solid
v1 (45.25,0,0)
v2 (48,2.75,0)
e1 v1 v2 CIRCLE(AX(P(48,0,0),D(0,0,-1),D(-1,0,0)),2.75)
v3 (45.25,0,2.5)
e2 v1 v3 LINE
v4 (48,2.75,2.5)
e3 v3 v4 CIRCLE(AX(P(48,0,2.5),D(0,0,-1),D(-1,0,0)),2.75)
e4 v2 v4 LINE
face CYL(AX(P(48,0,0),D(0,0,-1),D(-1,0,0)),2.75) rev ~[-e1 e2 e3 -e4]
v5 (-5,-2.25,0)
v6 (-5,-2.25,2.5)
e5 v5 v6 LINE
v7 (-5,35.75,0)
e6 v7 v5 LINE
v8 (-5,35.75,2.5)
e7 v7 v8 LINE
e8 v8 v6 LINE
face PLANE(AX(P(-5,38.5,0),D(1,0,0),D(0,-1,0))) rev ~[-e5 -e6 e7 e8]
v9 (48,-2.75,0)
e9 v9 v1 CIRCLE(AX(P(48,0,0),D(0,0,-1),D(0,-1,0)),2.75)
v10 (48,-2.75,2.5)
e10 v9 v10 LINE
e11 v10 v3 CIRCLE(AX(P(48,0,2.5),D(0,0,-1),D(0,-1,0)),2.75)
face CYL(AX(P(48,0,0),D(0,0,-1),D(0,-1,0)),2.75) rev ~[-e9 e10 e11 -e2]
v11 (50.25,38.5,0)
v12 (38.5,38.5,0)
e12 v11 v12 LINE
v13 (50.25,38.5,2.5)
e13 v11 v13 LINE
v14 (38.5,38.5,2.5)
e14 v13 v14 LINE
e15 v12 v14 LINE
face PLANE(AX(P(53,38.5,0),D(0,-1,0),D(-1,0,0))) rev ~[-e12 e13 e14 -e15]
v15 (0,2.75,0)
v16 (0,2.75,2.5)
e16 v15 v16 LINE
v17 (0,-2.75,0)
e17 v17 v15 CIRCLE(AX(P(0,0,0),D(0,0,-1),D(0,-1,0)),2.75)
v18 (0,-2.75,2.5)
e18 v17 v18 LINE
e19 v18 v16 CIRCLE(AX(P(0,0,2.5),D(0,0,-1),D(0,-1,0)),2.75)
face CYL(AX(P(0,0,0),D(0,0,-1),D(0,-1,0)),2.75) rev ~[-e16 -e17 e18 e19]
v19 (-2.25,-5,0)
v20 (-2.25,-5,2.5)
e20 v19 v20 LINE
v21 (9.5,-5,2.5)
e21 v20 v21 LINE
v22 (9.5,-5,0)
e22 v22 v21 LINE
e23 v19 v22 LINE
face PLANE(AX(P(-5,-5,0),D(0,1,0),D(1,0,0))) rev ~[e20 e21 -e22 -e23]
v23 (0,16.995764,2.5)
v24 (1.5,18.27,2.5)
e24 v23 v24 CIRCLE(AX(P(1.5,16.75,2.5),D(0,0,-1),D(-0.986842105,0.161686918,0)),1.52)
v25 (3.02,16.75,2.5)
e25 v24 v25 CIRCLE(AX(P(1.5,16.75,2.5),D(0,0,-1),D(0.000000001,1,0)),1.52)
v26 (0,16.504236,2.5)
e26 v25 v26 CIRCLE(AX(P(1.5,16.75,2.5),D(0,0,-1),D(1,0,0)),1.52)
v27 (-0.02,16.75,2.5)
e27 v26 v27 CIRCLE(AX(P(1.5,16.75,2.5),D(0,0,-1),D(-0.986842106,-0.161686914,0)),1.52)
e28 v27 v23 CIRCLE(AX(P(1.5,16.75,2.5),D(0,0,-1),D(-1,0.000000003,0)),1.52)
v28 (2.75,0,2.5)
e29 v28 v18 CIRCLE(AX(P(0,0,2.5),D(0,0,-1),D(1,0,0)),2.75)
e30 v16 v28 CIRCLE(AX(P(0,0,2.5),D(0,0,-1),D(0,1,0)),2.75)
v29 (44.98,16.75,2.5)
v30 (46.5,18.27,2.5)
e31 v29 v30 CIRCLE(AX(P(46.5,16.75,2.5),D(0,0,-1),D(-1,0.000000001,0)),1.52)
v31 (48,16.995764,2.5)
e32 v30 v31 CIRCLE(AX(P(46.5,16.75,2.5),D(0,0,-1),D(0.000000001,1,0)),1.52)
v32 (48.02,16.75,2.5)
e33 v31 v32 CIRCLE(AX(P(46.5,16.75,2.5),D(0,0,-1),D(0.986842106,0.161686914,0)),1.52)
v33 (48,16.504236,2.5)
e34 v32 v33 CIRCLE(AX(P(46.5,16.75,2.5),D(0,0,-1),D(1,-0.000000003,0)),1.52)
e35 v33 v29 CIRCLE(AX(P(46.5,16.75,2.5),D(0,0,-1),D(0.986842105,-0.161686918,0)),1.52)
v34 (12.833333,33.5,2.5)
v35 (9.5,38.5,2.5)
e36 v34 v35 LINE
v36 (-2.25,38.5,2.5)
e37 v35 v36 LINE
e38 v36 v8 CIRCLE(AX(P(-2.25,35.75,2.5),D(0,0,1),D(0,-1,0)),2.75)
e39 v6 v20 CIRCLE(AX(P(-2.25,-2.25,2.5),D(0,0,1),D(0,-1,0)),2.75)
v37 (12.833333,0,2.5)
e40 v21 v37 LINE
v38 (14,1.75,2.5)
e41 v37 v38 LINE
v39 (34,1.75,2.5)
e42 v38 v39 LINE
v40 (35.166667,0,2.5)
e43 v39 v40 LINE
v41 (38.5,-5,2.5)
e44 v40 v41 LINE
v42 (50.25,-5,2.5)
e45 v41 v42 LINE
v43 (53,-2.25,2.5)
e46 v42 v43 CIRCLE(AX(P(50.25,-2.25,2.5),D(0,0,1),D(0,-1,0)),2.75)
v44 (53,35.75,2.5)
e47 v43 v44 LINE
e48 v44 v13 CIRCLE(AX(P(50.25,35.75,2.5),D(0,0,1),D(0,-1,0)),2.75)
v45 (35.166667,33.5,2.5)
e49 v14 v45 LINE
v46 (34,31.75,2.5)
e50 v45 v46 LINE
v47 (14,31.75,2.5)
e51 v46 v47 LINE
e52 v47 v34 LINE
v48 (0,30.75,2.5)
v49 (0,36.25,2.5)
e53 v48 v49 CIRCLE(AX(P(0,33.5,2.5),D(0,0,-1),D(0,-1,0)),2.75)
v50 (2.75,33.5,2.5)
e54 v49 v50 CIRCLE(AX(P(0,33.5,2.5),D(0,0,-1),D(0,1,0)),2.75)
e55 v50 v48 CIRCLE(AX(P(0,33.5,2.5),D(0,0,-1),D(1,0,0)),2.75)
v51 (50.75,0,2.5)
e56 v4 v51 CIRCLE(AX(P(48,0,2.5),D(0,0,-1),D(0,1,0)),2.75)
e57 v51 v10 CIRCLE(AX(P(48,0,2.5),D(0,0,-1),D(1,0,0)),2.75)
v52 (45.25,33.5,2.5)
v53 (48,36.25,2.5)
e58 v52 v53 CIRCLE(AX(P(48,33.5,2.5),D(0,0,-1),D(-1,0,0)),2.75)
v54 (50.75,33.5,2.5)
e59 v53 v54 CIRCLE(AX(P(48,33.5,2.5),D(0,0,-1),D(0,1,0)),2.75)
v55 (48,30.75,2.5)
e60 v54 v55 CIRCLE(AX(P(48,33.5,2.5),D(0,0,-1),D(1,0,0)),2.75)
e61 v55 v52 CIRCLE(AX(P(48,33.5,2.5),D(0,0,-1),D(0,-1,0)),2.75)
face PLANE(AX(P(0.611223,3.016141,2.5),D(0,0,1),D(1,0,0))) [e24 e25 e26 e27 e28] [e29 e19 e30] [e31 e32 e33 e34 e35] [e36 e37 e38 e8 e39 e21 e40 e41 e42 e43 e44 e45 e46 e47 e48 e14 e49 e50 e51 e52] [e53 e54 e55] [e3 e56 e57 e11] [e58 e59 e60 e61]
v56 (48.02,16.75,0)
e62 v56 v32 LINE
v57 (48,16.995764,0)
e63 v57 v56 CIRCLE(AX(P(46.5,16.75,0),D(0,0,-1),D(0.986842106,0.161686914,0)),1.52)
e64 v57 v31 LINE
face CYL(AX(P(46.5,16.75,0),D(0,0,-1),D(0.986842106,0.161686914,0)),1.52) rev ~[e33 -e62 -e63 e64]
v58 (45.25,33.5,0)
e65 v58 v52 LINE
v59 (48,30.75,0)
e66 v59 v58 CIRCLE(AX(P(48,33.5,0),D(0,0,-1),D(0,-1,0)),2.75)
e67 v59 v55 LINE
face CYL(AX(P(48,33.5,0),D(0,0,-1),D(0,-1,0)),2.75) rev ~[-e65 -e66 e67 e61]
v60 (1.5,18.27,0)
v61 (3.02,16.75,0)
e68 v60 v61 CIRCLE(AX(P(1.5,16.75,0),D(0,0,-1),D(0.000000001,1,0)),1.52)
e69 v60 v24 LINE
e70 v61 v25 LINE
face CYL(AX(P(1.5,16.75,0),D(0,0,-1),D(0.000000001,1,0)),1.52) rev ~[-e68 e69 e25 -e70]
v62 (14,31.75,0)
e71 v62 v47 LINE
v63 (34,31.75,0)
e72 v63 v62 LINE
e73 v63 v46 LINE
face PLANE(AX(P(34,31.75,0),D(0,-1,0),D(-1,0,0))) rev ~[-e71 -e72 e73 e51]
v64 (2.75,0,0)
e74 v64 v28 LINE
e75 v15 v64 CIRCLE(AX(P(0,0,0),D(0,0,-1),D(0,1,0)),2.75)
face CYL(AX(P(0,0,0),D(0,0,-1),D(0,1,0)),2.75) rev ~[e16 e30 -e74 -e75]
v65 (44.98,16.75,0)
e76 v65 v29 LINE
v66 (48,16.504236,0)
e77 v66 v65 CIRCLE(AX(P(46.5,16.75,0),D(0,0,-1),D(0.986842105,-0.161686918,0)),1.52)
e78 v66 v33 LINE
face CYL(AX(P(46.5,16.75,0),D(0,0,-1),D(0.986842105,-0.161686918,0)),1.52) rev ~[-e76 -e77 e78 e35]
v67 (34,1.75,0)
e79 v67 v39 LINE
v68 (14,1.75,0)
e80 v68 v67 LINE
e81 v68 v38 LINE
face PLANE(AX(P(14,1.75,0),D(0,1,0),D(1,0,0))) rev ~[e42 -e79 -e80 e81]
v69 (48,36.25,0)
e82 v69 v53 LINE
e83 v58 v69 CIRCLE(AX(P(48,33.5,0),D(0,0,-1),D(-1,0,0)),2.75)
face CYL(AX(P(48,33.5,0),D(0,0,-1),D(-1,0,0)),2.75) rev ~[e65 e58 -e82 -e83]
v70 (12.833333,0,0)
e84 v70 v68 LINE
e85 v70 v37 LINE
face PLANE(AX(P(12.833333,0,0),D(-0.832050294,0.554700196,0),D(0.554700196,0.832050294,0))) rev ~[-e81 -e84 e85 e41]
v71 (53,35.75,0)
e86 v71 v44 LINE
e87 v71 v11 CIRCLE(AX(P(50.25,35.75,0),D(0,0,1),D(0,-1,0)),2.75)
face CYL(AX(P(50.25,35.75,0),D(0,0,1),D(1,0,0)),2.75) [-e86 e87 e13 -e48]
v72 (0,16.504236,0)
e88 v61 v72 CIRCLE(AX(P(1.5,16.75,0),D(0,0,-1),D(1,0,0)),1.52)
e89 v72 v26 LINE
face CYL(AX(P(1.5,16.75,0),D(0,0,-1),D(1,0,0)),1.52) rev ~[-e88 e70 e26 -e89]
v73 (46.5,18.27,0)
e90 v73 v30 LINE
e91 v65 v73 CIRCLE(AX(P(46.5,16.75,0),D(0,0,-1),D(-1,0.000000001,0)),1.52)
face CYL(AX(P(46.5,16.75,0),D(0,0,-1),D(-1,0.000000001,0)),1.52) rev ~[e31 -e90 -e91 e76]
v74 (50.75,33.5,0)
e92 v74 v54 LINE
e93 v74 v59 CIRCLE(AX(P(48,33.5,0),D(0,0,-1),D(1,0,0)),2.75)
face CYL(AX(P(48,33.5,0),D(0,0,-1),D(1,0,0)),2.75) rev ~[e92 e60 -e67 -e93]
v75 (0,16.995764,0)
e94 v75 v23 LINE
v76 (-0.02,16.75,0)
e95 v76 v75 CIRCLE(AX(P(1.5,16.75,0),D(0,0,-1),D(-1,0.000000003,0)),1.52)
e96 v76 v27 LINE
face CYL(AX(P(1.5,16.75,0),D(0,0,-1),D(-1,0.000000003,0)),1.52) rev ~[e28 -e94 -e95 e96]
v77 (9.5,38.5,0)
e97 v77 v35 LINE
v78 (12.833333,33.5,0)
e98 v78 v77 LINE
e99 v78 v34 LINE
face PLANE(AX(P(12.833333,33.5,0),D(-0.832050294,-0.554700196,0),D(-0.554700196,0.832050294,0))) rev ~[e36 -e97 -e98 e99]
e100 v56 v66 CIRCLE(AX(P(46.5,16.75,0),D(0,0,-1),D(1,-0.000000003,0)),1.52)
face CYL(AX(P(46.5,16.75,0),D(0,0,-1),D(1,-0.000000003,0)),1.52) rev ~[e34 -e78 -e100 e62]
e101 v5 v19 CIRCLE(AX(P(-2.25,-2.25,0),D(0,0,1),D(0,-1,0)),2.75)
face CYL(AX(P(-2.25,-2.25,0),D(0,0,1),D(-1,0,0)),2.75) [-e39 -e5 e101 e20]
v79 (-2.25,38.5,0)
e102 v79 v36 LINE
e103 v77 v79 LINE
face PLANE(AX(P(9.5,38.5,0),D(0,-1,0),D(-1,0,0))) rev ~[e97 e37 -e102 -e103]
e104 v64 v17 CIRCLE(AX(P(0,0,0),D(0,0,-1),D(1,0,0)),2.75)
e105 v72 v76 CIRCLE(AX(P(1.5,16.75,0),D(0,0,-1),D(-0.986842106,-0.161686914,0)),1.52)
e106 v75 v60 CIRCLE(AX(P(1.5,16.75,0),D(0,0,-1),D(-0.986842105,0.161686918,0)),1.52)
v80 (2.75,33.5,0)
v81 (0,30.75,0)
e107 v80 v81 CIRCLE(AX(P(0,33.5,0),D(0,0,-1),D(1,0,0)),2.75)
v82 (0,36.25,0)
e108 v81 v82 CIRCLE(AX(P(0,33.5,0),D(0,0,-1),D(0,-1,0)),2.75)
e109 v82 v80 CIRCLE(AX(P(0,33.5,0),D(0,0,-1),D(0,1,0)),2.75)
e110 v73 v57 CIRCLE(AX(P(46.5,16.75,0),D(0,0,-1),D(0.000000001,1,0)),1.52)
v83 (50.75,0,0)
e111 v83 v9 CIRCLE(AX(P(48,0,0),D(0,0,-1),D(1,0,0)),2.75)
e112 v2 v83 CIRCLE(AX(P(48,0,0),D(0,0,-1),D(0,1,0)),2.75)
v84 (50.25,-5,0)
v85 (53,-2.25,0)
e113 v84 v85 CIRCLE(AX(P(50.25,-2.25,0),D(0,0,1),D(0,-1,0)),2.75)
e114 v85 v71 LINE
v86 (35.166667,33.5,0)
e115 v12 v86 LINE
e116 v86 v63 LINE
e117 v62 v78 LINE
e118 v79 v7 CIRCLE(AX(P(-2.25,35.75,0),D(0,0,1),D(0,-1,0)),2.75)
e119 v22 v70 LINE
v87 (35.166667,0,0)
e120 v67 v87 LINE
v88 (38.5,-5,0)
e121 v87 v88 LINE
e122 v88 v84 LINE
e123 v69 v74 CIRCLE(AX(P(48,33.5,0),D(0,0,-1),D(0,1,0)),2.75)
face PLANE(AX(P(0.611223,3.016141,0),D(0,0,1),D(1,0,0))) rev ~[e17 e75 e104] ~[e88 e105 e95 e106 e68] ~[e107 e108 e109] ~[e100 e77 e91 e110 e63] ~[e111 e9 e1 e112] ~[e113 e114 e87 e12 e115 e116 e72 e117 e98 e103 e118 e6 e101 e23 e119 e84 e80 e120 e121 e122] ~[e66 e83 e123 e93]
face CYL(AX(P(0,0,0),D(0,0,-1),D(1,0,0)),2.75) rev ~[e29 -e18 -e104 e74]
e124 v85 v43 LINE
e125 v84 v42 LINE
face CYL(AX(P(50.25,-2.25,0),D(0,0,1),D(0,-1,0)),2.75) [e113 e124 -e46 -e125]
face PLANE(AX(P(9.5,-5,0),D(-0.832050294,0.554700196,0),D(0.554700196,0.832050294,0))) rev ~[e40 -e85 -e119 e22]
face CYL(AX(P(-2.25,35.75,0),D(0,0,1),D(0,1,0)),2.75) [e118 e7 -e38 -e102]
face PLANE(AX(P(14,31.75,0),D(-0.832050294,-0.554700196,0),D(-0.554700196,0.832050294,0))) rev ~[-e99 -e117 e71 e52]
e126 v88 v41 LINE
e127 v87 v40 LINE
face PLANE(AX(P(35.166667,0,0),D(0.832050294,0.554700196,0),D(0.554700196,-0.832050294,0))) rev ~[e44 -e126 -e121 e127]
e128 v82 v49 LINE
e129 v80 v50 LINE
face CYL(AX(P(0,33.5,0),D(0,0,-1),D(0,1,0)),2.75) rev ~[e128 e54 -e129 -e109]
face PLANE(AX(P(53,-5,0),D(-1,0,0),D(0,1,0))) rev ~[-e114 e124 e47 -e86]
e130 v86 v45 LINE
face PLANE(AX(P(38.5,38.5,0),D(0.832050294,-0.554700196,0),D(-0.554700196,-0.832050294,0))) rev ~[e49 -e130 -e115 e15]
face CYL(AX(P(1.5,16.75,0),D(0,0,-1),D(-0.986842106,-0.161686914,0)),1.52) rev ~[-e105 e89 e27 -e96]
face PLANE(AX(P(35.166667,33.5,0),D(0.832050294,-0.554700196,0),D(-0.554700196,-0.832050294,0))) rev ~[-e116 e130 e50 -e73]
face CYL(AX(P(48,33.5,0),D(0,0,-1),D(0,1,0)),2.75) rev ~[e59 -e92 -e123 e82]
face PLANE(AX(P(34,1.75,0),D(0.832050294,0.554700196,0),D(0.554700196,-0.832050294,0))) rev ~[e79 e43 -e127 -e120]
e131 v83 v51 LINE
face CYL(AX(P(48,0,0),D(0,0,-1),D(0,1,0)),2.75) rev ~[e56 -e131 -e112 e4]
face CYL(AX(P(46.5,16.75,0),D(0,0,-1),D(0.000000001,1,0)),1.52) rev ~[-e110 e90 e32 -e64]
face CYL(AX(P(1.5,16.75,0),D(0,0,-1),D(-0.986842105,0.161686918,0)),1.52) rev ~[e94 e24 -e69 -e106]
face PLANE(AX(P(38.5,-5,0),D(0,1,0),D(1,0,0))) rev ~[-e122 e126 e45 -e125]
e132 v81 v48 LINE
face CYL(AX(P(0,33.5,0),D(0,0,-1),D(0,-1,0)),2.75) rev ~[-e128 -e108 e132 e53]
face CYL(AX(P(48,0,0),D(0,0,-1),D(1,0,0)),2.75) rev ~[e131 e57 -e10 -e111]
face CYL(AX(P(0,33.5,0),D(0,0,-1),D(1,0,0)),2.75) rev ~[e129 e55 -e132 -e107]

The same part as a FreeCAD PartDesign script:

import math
import FreeCAD as App
import Part
import Sketcher

V = App.Vector


def edges_at(feature, points):
    """Names of the edges that pass closest to the given points."""
    edges = feature.Shape.Edges
    near = lambda p: min(range(len(edges)), key=lambda i: edges[i].distToShape(Part.Vertex(*p))[0])
    return sorted({f"Edge{near(p) + 1}" for p in points})


def add_polygon(sketch, points):
    """Adds a closed chain of lines whose ends are joined by coincident constraints."""
    first, n = sketch.GeometryCount, len(points)
    for a, b in zip(points, points[1:] + points[:1]):
        sketch.addGeometry(Part.LineSegment(App.Vector(*a, 0), App.Vector(*b, 0)), False)
    for i in range(n):
        sketch.addConstraint(Sketcher.Constraint("Coincident", first + i, 2, first + (i + 1) % n, 1))

doc = App.newDocument("Part")
body = doc.addObject("PartDesign::Body", "Body")

# Sketch on XY plane
sketch1 = body.newObject("Sketcher::SketchObject", "Sketch")
sketch1.AttachmentSupport = (doc.getObject("XY_Plane"), [""])
sketch1.MapMode = "FlatFace"
add_polygon(sketch1, [(34, 1.75), (35.17, 0), (38.5, -5), (53, -5), (53, 38.5), (38.5, 38.5), (35.17, 33.5), (34, 31.75), (14, 31.75), (12.83, 33.5), (9.5, 38.5), (-5, 38.5), (-5, -5), (9.5, -5), (12.83, 0), (14, 1.75)])  # lines 0-15
sketch1.addGeometry(Part.ArcOfCircle(Part.Circle(V(1.5, 16.75, 0), V(0, 0, 1), 1.52), math.radians(-180), math.radians(-170.7)), False)  # 16
sketch1.addGeometry(Part.ArcOfCircle(Part.Circle(V(1.5, 16.75, 0), V(0, 0, 1), 1.52), math.radians(170.7), math.radians(180)), False)  # 17
sketch1.addGeometry(Part.ArcOfCircle(Part.Circle(V(1.5, 16.75, 0), V(0, 0, 1), 1.52), math.radians(90), math.radians(171)), False)  # 18
sketch1.addGeometry(Part.ArcOfCircle(Part.Circle(V(1.5, 16.75, 0), V(0, 0, 1), 1.52), math.radians(0), math.radians(90)), False)  # 19
sketch1.addGeometry(Part.ArcOfCircle(Part.Circle(V(1.5, 16.75, 0), V(0, 0, 1), 1.52), math.radians(-171), math.radians(0)), False)  # 20
sketch1.addGeometry(Part.ArcOfCircle(Part.Circle(V(0, 0, 0), V(0, 0, 1), 2.75), math.radians(-90), math.radians(0)), False)  # 21
sketch1.addGeometry(Part.ArcOfCircle(Part.Circle(V(0, 0, 0), V(0, 0, 1), 2.75), math.radians(90), math.radians(270)), False)  # 22
sketch1.addGeometry(Part.ArcOfCircle(Part.Circle(V(0, 0, 0), V(0, 0, 1), 2.75), math.radians(0), math.radians(90)), False)  # 23
sketch1.addGeometry(Part.ArcOfCircle(Part.Circle(V(46.5, 16.75, 0), V(0, 0, 1), 1.52), math.radians(90), math.radians(180)), False)  # 24
sketch1.addGeometry(Part.ArcOfCircle(Part.Circle(V(46.5, 16.75, 0), V(0, 0, 1), 1.52), math.radians(9), math.radians(90)), False)  # 25
sketch1.addGeometry(Part.ArcOfCircle(Part.Circle(V(46.5, 16.75, 0), V(0, 0, 1), 1.52), math.radians(0), math.radians(9.3)), False)  # 26
sketch1.addGeometry(Part.ArcOfCircle(Part.Circle(V(46.5, 16.75, 0), V(0, 0, 1), 1.52), math.radians(-9.3), math.radians(0)), False)  # 27
sketch1.addGeometry(Part.ArcOfCircle(Part.Circle(V(46.5, 16.75, 0), V(0, 0, 1), 1.52), math.radians(180), math.radians(351)), False)  # 28
sketch1.addGeometry(Part.ArcOfCircle(Part.Circle(V(48, 0, 0), V(0, 0, 1), 2.75), math.radians(0), math.radians(90)), False)  # 29
sketch1.addGeometry(Part.ArcOfCircle(Part.Circle(V(48, 0, 0), V(0, 0, 1), 2.75), math.radians(-90), math.radians(0)), False)  # 30
sketch1.addGeometry(Part.ArcOfCircle(Part.Circle(V(48, 0, 0), V(0, 0, 1), 2.75), math.radians(-180), math.radians(-90)), False)  # 31
sketch1.addGeometry(Part.ArcOfCircle(Part.Circle(V(48, 0, 0), V(0, 0, 1), 2.75), math.radians(90), math.radians(180)), False)  # 32
sketch1.addGeometry(Part.ArcOfCircle(Part.Circle(V(48, 33.5, 0), V(0, 0, 1), 2.75), math.radians(-180), math.radians(-90)), False)  # 33
sketch1.addGeometry(Part.ArcOfCircle(Part.Circle(V(48, 33.5, 0), V(0, 0, 1), 2.75), math.radians(90), math.radians(180)), False)  # 34
sketch1.addGeometry(Part.ArcOfCircle(Part.Circle(V(48, 33.5, 0), V(0, 0, 1), 2.75), math.radians(0), math.radians(90)), False)  # 35
sketch1.addGeometry(Part.ArcOfCircle(Part.Circle(V(48, 33.5, 0), V(0, 0, 1), 2.75), math.radians(-90), math.radians(0)), False)  # 36
sketch1.addGeometry(Part.ArcOfCircle(Part.Circle(V(0, 33.5, 0), V(0, 0, 1), 2.75), math.radians(90), math.radians(270)), False)  # 37
sketch1.addGeometry(Part.ArcOfCircle(Part.Circle(V(0, 33.5, 0), V(0, 0, 1), 2.75), math.radians(0), math.radians(90)), False)  # 38
sketch1.addGeometry(Part.ArcOfCircle(Part.Circle(V(0, 33.5, 0), V(0, 0, 1), 2.75), math.radians(-90), math.radians(0)), False)  # 39
sketch1.addConstraint([
    Sketcher.Constraint("Tangent", 16, 1, 17, 2),
    Sketcher.Constraint("Tangent", 17, 1, 18, 2),
    Sketcher.Constraint("Tangent", 18, 1, 19, 2),
    Sketcher.Constraint("Tangent", 19, 1, 20, 2),
    Sketcher.Constraint("Tangent", 20, 1, 16, 2),
    Sketcher.Constraint("Tangent", 21, 1, 22, 2),
    Sketcher.Constraint("Tangent", 22, 1, 23, 2),
    Sketcher.Constraint("Tangent", 23, 1, 21, 2),
    Sketcher.Constraint("Tangent", 24, 1, 25, 2),
    Sketcher.Constraint("Tangent", 25, 1, 26, 2),
    Sketcher.Constraint("Tangent", 26, 1, 27, 2),
    Sketcher.Constraint("Tangent", 27, 1, 28, 2),
    Sketcher.Constraint("Tangent", 28, 1, 24, 2),
    Sketcher.Constraint("Tangent", 29, 1, 30, 2),
    Sketcher.Constraint("Tangent", 30, 1, 31, 2),
    Sketcher.Constraint("Tangent", 31, 1, 32, 2),
    Sketcher.Constraint("Tangent", 32, 1, 29, 2),
    Sketcher.Constraint("Tangent", 33, 1, 34, 2),
    Sketcher.Constraint("Tangent", 34, 1, 35, 2),
    Sketcher.Constraint("Tangent", 35, 1, 36, 2),
    Sketcher.Constraint("Tangent", 36, 1, 33, 2),
    Sketcher.Constraint("Tangent", 37, 1, 38, 2),
    Sketcher.Constraint("Tangent", 38, 1, 39, 2),
    Sketcher.Constraint("Tangent", 39, 1, 37, 2),
    Sketcher.Constraint("Horizontal", 2),
    Sketcher.Constraint("Vertical", 3),
    Sketcher.Constraint("Horizontal", 4),
    Sketcher.Constraint("Horizontal", 7),
    Sketcher.Constraint("Horizontal", 10),
    Sketcher.Constraint("Vertical", 11),
    Sketcher.Constraint("Horizontal", 12),
    Sketcher.Constraint("Horizontal", 15),
    Sketcher.Constraint("Coincident", 21, 3, -1, 1),
    Sketcher.Constraint("Coincident", 18, 3, 16, 3),
    Sketcher.Constraint("Coincident", 26, 3, 24, 3),
    Sketcher.Constraint("Equal", 20, 24),
    Sketcher.Constraint("Equal", 23, 29),
    Sketcher.Constraint("Equal", 29, 30),
    Sketcher.Constraint("Equal", 32, 33),
    Sketcher.Constraint("Equal", 33, 34),
    Sketcher.Constraint("Equal", 36, 37),
    Sketcher.Constraint("Symmetric", 30, 1, 32, 1, -1),
    Sketcher.Constraint("PointOnObject", 37, 3, -2),
    Sketcher.Constraint("PointOnObject", 0, 2, -1),
    Sketcher.Constraint("PointOnObject", 13, 2, -1),
    Sketcher.Constraint("PointOnObject", 17, 1, -2),
    Sketcher.Constraint("PointOnObject", 20, 1, -2),
    Sketcher.Constraint("PointOnObject", 21, 1, -2),
    Sketcher.Constraint("PointOnObject", 22, 1, -2),
    Sketcher.Constraint("PointOnObject", 23, 1, -1),
    Sketcher.Constraint("PointOnObject", 29, 1, -1),
    Sketcher.Constraint("PointOnObject", 31, 1, -1),
    Sketcher.Constraint("PointOnObject", 37, 1, -2),
    Sketcher.Constraint("PointOnObject", 39, 1, -2),
    Sketcher.Constraint("Parallel", 0, 1),
    Sketcher.Constraint("Parallel", 5, 6),
    Sketcher.Constraint("Parallel", 1, 8),
    Sketcher.Constraint("Parallel", 8, 9),
    Sketcher.Constraint("Parallel", 6, 13),
    Sketcher.Constraint("Parallel", 13, 14),
    Sketcher.Constraint("Horizontal", 20, 3, 24, 3),
    Sketcher.Constraint("Horizontal", 36, 3, 37, 3),
    Sketcher.Constraint("Horizontal", 39, 3, 5, 2),
    Sketcher.Constraint("Horizontal", 5, 2, 8, 2),
    Sketcher.Constraint("Horizontal", 4, 2, 9, 2),
    Sketcher.Constraint("Horizontal", 2, 2, 11, 2),
    Sketcher.Constraint("Horizontal", 28, 3, 16, 1),
    Sketcher.Constraint("Horizontal", 16, 1, 19, 1),
    Sketcher.Constraint("Horizontal", 17, 1, 25, 1),
    Sketcher.Constraint("Horizontal", 19, 1, 26, 1),
    Sketcher.Constraint("Horizontal", 20, 1, 27, 1),
    Sketcher.Constraint("Horizontal", 26, 1, 28, 1),
    Sketcher.Constraint("Horizontal", 8, 2, 33, 1),
    Sketcher.Constraint("Horizontal", 33, 1, 35, 1),
    Sketcher.Constraint("Horizontal", 35, 1, 38, 1),
    Sketcher.Constraint("Vertical", 32, 3, 33, 3),
    Sketcher.Constraint("Vertical", 1, 2, 4, 2),
    Sketcher.Constraint("Vertical", 0, 2, 5, 2),
    Sketcher.Constraint("Vertical", 9, 2, 12, 2),
    Sketcher.Constraint("Vertical", 8, 2, 13, 2),
    Sketcher.Constraint("Vertical", 7, 2, 14, 2),
    Sketcher.Constraint("Vertical", 20, 3, 18, 1),
    Sketcher.Constraint("Vertical", 28, 3, 24, 1),
    Sketcher.Constraint("Vertical", 36, 3, 25, 1),
    Sketcher.Constraint("Vertical", 27, 1, 30, 1),
    Sketcher.Constraint("Vertical", 32, 1, 34, 1),
    Sketcher.Constraint("Vertical", 34, 1, 36, 1),
    Sketcher.Constraint("Equal", 4, 10),
    Sketcher.Constraint("DistanceX", 7, 2, 7, 1, 20.0),
    Sketcher.Constraint("Radius", 16, 1.52),
    Sketcher.Constraint("Radius", 21, 2.75),
    Sketcher.Constraint("DistanceX", 2, 1, 2, 2, 14.5),
    Sketcher.Constraint("DistanceY", 3, 1, 3, 2, 43.5),
    Sketcher.Constraint("DistanceX", -1, 1, 29, 3, 48.0),
    Sketcher.Constraint("DistanceY", 1, 2, -1, 1, 5.0),
    Sketcher.Constraint("DistanceX", -1, 1, 2, 2, 53.0),
    Sketcher.Constraint("DistanceX", -1, 1, 6, 2, 34.0),
    Sketcher.Constraint("DistanceX", -1, 1, 16, 3, 1.5),
    Sketcher.Constraint("DistanceY", -1, 1, 16, 3, 16.75),
    Sketcher.Constraint("DistanceY", -1, 1, 6, 2, 31.75),
])
pad1 = body.newObject("PartDesign::Pad", "Pad")
pad1.Profile = sketch1
pad1.Length = 2.5
doc.recompute()

fillet = body.newObject("PartDesign::Fillet", "Fillet")
fillet.Base = (pad1, edges_at(pad1, [
    (53, -5, 1.25),
    (-5, -5, 1.25),
    (-5, 38.5, 1.25),
    (53, 38.5, 1.25),
]))
fillet.Radius = 2.75

doc.recompute()
